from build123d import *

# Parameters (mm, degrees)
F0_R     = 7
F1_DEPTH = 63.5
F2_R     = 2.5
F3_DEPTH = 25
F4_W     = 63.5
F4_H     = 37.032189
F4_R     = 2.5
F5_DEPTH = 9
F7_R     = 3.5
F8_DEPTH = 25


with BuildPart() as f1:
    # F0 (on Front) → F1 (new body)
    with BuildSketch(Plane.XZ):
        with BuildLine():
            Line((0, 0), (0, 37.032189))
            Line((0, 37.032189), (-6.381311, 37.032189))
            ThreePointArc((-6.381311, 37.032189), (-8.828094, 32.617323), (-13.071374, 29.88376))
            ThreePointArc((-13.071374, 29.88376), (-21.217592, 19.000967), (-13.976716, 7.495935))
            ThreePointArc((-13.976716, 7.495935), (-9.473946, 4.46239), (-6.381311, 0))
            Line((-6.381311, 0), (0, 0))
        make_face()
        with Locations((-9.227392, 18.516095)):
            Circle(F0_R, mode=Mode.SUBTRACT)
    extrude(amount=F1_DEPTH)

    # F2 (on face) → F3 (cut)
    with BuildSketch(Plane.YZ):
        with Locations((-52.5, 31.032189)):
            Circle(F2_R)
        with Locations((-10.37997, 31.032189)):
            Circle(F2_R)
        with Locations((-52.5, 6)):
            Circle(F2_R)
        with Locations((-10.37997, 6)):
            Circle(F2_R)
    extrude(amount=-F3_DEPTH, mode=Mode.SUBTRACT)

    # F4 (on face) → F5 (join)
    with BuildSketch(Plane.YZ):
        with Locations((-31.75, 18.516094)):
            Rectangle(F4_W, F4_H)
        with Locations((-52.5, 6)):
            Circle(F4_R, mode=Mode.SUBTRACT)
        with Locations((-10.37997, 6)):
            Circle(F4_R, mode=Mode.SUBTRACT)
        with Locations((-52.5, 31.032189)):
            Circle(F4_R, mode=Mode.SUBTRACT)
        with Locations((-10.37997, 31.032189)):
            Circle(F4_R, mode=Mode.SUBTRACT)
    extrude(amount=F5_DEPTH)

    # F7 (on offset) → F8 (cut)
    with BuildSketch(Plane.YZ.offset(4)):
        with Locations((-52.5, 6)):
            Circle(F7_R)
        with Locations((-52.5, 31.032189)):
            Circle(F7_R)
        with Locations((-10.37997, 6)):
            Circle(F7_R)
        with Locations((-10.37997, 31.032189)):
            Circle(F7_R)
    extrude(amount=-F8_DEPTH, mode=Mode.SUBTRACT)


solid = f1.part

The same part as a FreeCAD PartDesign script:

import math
import FreeCAD as App
import Part
import Sketcher

V = App.Vector


def add_polygon(sketch, points):
    """Adds a closed chain of lines whose ends are joined by coincident constraints."""
    first, n = sketch.GeometryCount, len(points)
    for a, b in zip(points, points[1:] + points[:1]):
        sketch.addGeometry(Part.LineSegment(App.Vector(*a, 0), App.Vector(*b, 0)), False)
    for i in range(n):
        sketch.addConstraint(Sketcher.Constraint("Coincident", first + i, 2, first + (i + 1) % n, 1))

doc = App.newDocument("Part")
body = doc.addObject("PartDesign::Body", "Body")

# Sketch on XZ plane
sketch1 = doc.addObject("Sketcher::SketchObject", "Sketch")
body.addObject(sketch1)
sketch1.AttachmentSupport = (doc.XZ_Plane, [""])
sketch1.MapMode = "FlatFace"
sketch1.addGeometry(Part.LineSegment(V(0, 0, 0), V(0, 37, 0)), False)
sketch1.addGeometry(Part.LineSegment(V(0, 37, 0), V(-6, 37, 0)), False)
sketch1.addGeometry(Part.ArcOfCircle(Part.Circle(V(-16, 40, 0), V(0, 0, 1), 10), math.radians(-71), math.radians(-15)), False)
sketch1.addGeometry(Part.ArcOfCircle(Part.Circle(V(-9, 19, 0), V(0, 0, 1), 12), math.radians(109), math.radians(247)), False)
sketch1.addGeometry(Part.ArcOfCircle(Part.Circle(V(-20, -6, 0), V(0, 0, 1), 15), math.radians(24), math.radians(67)), False)
sketch1.addGeometry(Part.LineSegment(V(-6, 0, 0), V(0, 0, 0)), False)
sketch1.addGeometry(Part.Circle(V(-9, 19, 0), V(0, 0, 1), 7), False)
sketch1.addConstraint(Sketcher.Constraint("Coincident", 0, 2, 1, 1))
sketch1.addConstraint(Sketcher.Constraint("Coincident", 1, 2, 2, 2))
sketch1.addConstraint(Sketcher.Constraint("Tangent", 2, 1, 3, 1))
sketch1.addConstraint(Sketcher.Constraint("Tangent", 3, 2, 4, 2))
sketch1.addConstraint(Sketcher.Constraint("Coincident", 4, 1, 5, 1))
sketch1.addConstraint(Sketcher.Constraint("Coincident", 5, 2, 0, 1))
sketch1.addConstraint(Sketcher.Constraint("Vertical", 0))
sketch1.addConstraint(Sketcher.Constraint("Horizontal", 1))
sketch1.addConstraint(Sketcher.Constraint("Horizontal", 5))
sketch1.addConstraint(Sketcher.Constraint("Coincident", 5, 2, -1, 1))
sketch1.addConstraint(Sketcher.Constraint("Coincident", 6, 3, 3, 3))
sketch1.addConstraint(Sketcher.Constraint("Vertical", 1, 2, 4, 1))
sketch1.addConstraint(Sketcher.Constraint("Diameter", 6, 14.0))
sketch1.addConstraint(Sketcher.Constraint("Radius", 3, 12.0))
sketch1.addConstraint(Sketcher.Constraint("Radius", 2, 10.354617))
sketch1.addConstraint(Sketcher.Constraint("Radius", 4, 14.683558))
sketch1.addConstraint(Sketcher.Constraint("DistanceX", 1, 2, 1, 1, 6.381311))
sketch1.addConstraint(Sketcher.Constraint("DistanceY", 0, 1, 0, 2, 37.032189))
sketch1.addConstraint(Sketcher.Constraint("DistanceX", 3, 3, -1, 1, 9.227391))
sketch1.addConstraint(Sketcher.Constraint("DistanceX", 4, 3, -1, 1, 19.78813))
pad1 = doc.addObject("PartDesign::Pad", "Pad")
body.addObject(pad1)
pad1.Profile = sketch1
pad1.Length = 63.5

# Sketch on YZ plane
sketch2 = doc.addObject("Sketcher::SketchObject", "Sketch001")
body.addObject(sketch2)
sketch2.AttachmentSupport = (doc.YZ_Plane, [""])
sketch2.MapMode = "FlatFace"
sketch2.addGeometry(Part.Circle(V(-52.5, 31, 0), V(0, 0, 1), 2.5), False)
sketch2.addGeometry(Part.Circle(V(-10.4, 31, 0), V(0, 0, 1), 2.5), False)
sketch2.addGeometry(Part.Circle(V(-52.5, 6, 0), V(0, 0, 1), 2.5), False)
sketch2.addGeometry(Part.Circle(V(-10.4, 6, 0), V(0, 0, 1), 2.5), False)
sketch2.addConstraint(Sketcher.Constraint("Equal", 0, 1))
sketch2.addConstraint(Sketcher.Constraint("Equal", 1, 2))
sketch2.addConstraint(Sketcher.Constraint("Equal", 2, 3))
sketch2.addConstraint(Sketcher.Constraint("Horizontal", 0, 3, 1, 3))
sketch2.addConstraint(Sketcher.Constraint("Horizontal", 2, 3, 3, 3))
sketch2.addConstraint(Sketcher.Constraint("Vertical", 0, 3, 2, 3))
sketch2.addConstraint(Sketcher.Constraint("Vertical", 1, 3, 3, 3))
sketch2.addConstraint(Sketcher.Constraint("Diameter", 0, 5.0))
sketch2.addConstraint(Sketcher.Constraint("DistanceY", -1, 1, 2, 3, 6.0))
sketch2.addConstraint(Sketcher.Constraint("DistanceX", 0, 3, -1, 1, 52.5))
sketch2.addConstraint(Sketcher.Constraint("DistanceY", -1, 1, 0, 3, 31.032189))
sketch2.addConstraint(Sketcher.Constraint("DistanceX", 1, 3, -1, 1, 10.37997))
pocket1 = doc.addObject("PartDesign::Pocket", "Pocket")
body.addObject(pocket1)
pocket1.Profile = sketch2
pocket1.Length = 25

# Sketch on YZ plane
sketch3 = doc.addObject("Sketcher::SketchObject", "Sketch002")
body.addObject(sketch3)
sketch3.AttachmentSupport = (doc.YZ_Plane, [""])
sketch3.MapMode = "FlatFace"
add_polygon(sketch3, [(-63.5, 37), (-63.5, 0), (0, 0), (0, 37)])  # lines 0-3
sketch3.addGeometry(Part.Circle(V(-52.5, 6, 0), V(0, 0, 1), 2.5), False)  # 4
sketch3.addGeometry(Part.Circle(V(-10.4, 6, 0), V(0, 0, 1), 2.5), False)  # 5
sketch3.addGeometry(Part.Circle(V(-52.5, 31, 0), V(0, 0, 1), 2.5), False)  # 6
sketch3.addGeometry(Part.Circle(V(-10.4, 31, 0), V(0, 0, 1), 2.5), False)  # 7
sketch3.addConstraint(Sketcher.Constraint("Vertical", 0))
sketch3.addConstraint(Sketcher.Constraint("Horizontal", 1))
sketch3.addConstraint(Sketcher.Constraint("Vertical", 2))
sketch3.addConstraint(Sketcher.Constraint("Horizontal", 3))
sketch3.addConstraint(Sketcher.Constraint("Coincident", 1, 2, -1, 1))
sketch3.addConstraint(Sketcher.Constraint("Equal", 4, 5))
sketch3.addConstraint(Sketcher.Constraint("Equal", 5, 6))
sketch3.addConstraint(Sketcher.Constraint("Equal", 6, 7))
sketch3.addConstraint(Sketcher.Constraint("Horizontal", 4, 3, 5, 3))
sketch3.addConstraint(Sketcher.Constraint("Horizontal", 6, 3, 7, 3))
sketch3.addConstraint(Sketcher.Constraint("Vertical", 4, 3, 6, 3))
sketch3.addConstraint(Sketcher.Constraint("Vertical", 5, 3, 7, 3))
sketch3.addConstraint(Sketcher.Constraint("Diameter", 4, 5.0))
sketch3.addConstraint(Sketcher.Constraint("DistanceX", 1, 1, 1, 2, 63.5))
sketch3.addConstraint(Sketcher.Constraint("DistanceY", -1, 1, 4, 3, 6.0))
sketch3.addConstraint(Sketcher.Constraint("DistanceX", 0, 2, 4, 3, 11.0))
sketch3.addConstraint(Sketcher.Constraint("DistanceY", 7, 3, 2, 2, 5.999999))
sketch3.addConstraint(Sketcher.Constraint("DistanceY", 0, 2, 0, 1, 37.032189))
sketch3.addConstraint(Sketcher.Constraint("DistanceX", 5, 3, -1, 1, 10.37997))
pad2 = doc.addObject("PartDesign::Pad", "Pad001")
body.addObject(pad2)
pad2.Profile = sketch3
pad2.Length = 9

# Sketch on YZ plane
sketch4 = doc.addObject("Sketcher::SketchObject", "Sketch003")
body.addObject(sketch4)
sketch4.AttachmentSupport = (doc.YZ_Plane, [""])
sketch4.MapMode = "FlatFace"
sketch4.AttachmentOffset = App.Placement(V(0, 0, 4), App.Rotation())
sketch4.addGeometry(Part.Circle(V(-52.5, 6, 0), V(0, 0, 1), 3.5), False)
sketch4.addGeometry(Part.Circle(V(-52.5, 31, 0), V(0, 0, 1), 3.5), False)
sketch4.addGeometry(Part.Circle(V(-10.4, 6, 0), V(0, 0, 1), 3.5), False)
sketch4.addGeometry(Part.Circle(V(-10.4, 31, 0), V(0, 0, 1), 3.5), False)
sketch4.addConstraint(Sketcher.Constraint("Equal", 0, 1))
sketch4.addConstraint(Sketcher.Constraint("Equal", 1, 2))
sketch4.addConstraint(Sketcher.Constraint("Equal", 2, 3))
sketch4.addConstraint(Sketcher.Constraint("Horizontal", 0, 3, 2, 3))
sketch4.addConstraint(Sketcher.Constraint("Horizontal", 1, 3, 3, 3))
sketch4.addConstraint(Sketcher.Constraint("Vertical", 0, 3, 1, 3))
sketch4.addConstraint(Sketcher.Constraint("Vertical", 2, 3, 3, 3))
sketch4.addConstraint(Sketcher.Constraint("Diameter", 0, 7.0))
sketch4.addConstraint(Sketcher.Constraint("DistanceY", -1, 1, 0, 3, 6.0))
sketch4.addConstraint(Sketcher.Constraint("DistanceX", 0, 3, -1, 1, 52.5))
sketch4.addConstraint(Sketcher.Constraint("DistanceY", -1, 1, 1, 3, 31.032189))
sketch4.addConstraint(Sketcher.Constraint("DistanceX", 2, 3, -1, 1, 10.37997))
pocket2 = doc.addObject("PartDesign::Pocket", "Pocket001")
body.addObject(pocket2)
pocket2.Profile = sketch4
pocket2.Length = 25

doc.recompute()
